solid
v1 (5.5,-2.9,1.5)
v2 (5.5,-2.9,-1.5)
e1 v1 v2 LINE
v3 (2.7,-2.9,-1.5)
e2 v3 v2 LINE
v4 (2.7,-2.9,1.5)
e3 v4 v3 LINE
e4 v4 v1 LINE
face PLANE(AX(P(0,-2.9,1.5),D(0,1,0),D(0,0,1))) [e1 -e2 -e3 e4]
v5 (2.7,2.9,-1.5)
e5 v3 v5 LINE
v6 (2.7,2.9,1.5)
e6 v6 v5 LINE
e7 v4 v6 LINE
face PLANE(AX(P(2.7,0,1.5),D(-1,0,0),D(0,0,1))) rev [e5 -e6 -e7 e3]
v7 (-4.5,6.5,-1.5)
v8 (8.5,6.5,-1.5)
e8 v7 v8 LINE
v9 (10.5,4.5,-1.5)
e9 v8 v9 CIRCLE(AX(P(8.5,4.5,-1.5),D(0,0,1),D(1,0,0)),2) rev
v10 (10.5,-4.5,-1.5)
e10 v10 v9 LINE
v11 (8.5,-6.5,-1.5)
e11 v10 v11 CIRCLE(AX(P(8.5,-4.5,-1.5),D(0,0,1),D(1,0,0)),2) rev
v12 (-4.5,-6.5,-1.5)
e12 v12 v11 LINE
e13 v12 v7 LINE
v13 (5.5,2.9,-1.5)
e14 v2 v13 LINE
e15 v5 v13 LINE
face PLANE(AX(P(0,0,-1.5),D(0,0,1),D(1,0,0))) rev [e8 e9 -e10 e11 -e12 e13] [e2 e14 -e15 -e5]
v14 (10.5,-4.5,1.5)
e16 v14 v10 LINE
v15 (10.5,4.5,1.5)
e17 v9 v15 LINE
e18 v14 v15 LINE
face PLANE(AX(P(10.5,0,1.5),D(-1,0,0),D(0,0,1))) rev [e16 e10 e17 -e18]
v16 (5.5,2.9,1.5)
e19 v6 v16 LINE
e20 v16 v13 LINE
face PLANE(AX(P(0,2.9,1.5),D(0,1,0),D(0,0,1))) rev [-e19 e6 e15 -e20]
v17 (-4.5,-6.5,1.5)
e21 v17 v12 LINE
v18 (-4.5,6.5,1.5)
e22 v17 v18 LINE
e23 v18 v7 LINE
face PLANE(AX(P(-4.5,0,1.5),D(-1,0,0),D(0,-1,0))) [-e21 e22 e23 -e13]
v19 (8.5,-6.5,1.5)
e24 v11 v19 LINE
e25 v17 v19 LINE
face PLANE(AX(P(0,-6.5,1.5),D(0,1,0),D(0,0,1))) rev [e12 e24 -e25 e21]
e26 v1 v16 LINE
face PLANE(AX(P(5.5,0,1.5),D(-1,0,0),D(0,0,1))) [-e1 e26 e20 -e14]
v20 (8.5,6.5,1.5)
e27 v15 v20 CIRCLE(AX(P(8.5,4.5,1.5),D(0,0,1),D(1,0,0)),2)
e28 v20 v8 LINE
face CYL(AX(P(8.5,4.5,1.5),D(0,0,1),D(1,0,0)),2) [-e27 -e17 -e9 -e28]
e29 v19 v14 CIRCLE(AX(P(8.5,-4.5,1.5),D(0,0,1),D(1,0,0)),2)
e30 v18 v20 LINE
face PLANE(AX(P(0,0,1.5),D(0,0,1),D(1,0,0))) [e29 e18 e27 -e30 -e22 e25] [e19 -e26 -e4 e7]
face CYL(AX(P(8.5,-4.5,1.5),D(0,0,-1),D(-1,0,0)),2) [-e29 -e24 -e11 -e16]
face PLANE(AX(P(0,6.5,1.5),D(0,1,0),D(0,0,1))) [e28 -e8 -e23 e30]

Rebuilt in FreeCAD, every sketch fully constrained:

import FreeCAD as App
import Part
import Sketcher
from FreeCAD import Vector
Q = App.Units.Quantity


def edges_at(feature, points):
    """Names of the edges that pass closest to the given points."""
    edges = feature.Shape.Edges
    near = lambda p: min(range(len(edges)), key=lambda i: edges[i].distToShape(Part.Vertex(*p))[0])
    return sorted({f"Edge{near(p) + 1}" for p in points})


def add_polygon(sketch, points):
    """Adds a closed chain of lines whose ends are joined by coincident constraints."""
    first, n = sketch.GeometryCount, len(points)
    for a, b in zip(points, points[1:] + points[:1]):
        sketch.addGeometry(Part.LineSegment(App.Vector(*a, 0), App.Vector(*b, 0)), False)
    for i in range(n):
        sketch.addConstraint(Sketcher.Constraint("Coincident", first + i, 2, first + (i + 1) % n, 1))

doc = App.newDocument("Part")
body = doc.addObject("PartDesign::Body", "Body")

# Sketch on XY plane
sketch1 = body.newObject("Sketcher::SketchObject", "Sketch")
sketch1.AttachmentSupport = (doc.getObject("XY_Plane"), [""])
sketch1.MapMode = "FlatFace"
add_polygon(sketch1, [(-4.5, -6.5), (10.5, -6.5), (10.5, 6.5), (-4.5, 6.5)])  # lines 0-3
add_polygon(sketch1, [(5.5, -2.9), (2.7, -2.9), (2.7, 2.9), (5.5, 2.9)])  # lines 4-7
sketch1.addConstraint(Sketcher.Constraint("Horizontal", 0))
sketch1.addConstraint(Sketcher.Constraint("Vertical", 1))
sketch1.addConstraint(Sketcher.Constraint("Horizontal", 2))
sketch1.addConstraint(Sketcher.Constraint("Vertical", 3))
sketch1.addConstraint(Sketcher.Constraint("Horizontal", 4))
sketch1.addConstraint(Sketcher.Constraint("Vertical", 5))
sketch1.addConstraint(Sketcher.Constraint("Horizontal", 6))
sketch1.addConstraint(Sketcher.Constraint("Vertical", 7))
sketch1.addConstraint(Sketcher.Constraint("DistanceX", 0, 1, 0, 2, Q("15 mm")))
sketch1.addConstraint(Sketcher.Constraint("DistanceY", 1, 1, 1, 2, Q("13 mm")))
sketch1.addConstraint(Sketcher.Constraint("DistanceX", 4, 2, 4, 1, Q("2.8 mm")))
sketch1.addConstraint(Sketcher.Constraint("DistanceY", 5, 1, 5, 2, Q("5.8 mm")))
sketch1.addConstraint(Sketcher.Constraint("DistanceX", 6, 2, 1, 2, Q("5 mm")))
sketch1.addConstraint(Sketcher.Constraint("DistanceX", -1, 1, 0, 2, Q("10.5 mm")))
sketch1.addConstraint(Sketcher.Constraint("DistanceY", 0, 2, -1, 1, Q("6.5 mm")))
sketch1.addConstraint(Sketcher.Constraint("DistanceY", 4, 2, -1, 1, Q("2.9 mm")))
pad1 = body.newObject("PartDesign::Pad", "Pad")
pad1.Profile = sketch1
pad1.Length = 3
pad1.Midplane = True
doc.recompute()

fillet = body.newObject("PartDesign::Fillet", "Fillet")
fillet.Base = (pad1, edges_at(pad1, [(10.5, 6.5, 0), (10.5, -6.5, 0)]))
fillet.Radius = 2

doc.recompute()
